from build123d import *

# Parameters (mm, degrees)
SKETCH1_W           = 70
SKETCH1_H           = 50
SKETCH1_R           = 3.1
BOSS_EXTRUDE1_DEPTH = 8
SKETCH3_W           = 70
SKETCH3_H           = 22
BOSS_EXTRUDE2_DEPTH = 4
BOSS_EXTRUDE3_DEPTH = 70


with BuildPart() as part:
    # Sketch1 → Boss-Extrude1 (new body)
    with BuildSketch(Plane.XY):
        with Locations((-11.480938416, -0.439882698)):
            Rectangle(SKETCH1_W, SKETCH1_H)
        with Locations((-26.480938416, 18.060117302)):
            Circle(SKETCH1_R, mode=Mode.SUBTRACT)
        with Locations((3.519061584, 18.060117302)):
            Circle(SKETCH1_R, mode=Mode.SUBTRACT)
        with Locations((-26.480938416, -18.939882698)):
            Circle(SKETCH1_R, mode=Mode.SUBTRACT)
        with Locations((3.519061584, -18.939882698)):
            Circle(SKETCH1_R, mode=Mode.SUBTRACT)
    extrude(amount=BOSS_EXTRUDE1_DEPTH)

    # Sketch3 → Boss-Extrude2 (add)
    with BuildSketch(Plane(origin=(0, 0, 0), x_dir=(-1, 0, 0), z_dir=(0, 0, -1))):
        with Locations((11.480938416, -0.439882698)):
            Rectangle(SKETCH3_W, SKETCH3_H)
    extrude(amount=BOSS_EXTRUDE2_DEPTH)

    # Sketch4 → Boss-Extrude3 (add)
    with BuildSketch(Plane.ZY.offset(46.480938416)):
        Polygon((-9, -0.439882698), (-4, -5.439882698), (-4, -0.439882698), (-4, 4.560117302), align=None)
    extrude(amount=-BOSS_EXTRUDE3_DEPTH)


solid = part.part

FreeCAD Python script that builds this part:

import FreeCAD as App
import Part
import Sketcher
from FreeCAD import Vector
Q = App.Units.Quantity

doc = App.newDocument("Part")
body = doc.addObject("PartDesign::Body", "Body")

sketch1 = body.newObject("Sketcher::SketchObject", "Sketch")
sketch1.AttachmentSupport = (doc.getObject("XY_Plane"), [""])
sketch1.MapMode = "FlatFace"
sketch1.addGeometry([
    Part.LineSegment(Vector(-46.5, 24.6, 0), Vector(-46.5, -25.4, 0)),
    Part.LineSegment(Vector(-46.5, -25.4, 0), Vector(23.5, -25.4, 0)),
    Part.LineSegment(Vector(23.5, -25.4, 0), Vector(23.5, 24.6, 0)),
    Part.LineSegment(Vector(23.5, 24.6, 0), Vector(-46.5, 24.6, 0)),
    Part.Circle(Vector(-26.5, -18.9, 0), Vector(0, 0, 1), 3.1),
    Part.Circle(Vector(3.5, -18.9, 0), Vector(0, 0, 1), 3.1),
    Part.Circle(Vector(-26.5, 18.1, 0), Vector(0, 0, 1), 3.1),
    Part.Circle(Vector(3.5, 18.1, 0), Vector(0, 0, 1), 3.1),
], False)
sketch1.addConstraint([
    Sketcher.Constraint("Coincident", 0, 2, 1, 1),
    Sketcher.Constraint("Coincident", 1, 2, 2, 1),
    Sketcher.Constraint("Coincident", 2, 2, 3, 1),
    Sketcher.Constraint("Coincident", 3, 2, 0, 1),
    Sketcher.Constraint("Vertical", 0),
    Sketcher.Constraint("Horizontal", 1),
    Sketcher.Constraint("Vertical", 2),
    Sketcher.Constraint("Horizontal", 3),
    Sketcher.Constraint("Equal", 4, 5),
    Sketcher.Constraint("Equal", 5, 6),
    Sketcher.Constraint("Equal", 6, 7),
    Sketcher.Constraint("Horizontal", 4, 3, 5, 3),
    Sketcher.Constraint("Horizontal", 6, 3, 7, 3),
    Sketcher.Constraint("Vertical", 4, 3, 6, 3),
    Sketcher.Constraint("Vertical", 5, 3, 7, 3),
    Sketcher.Constraint("Diameter", 4, Q("6.2 mm")),
    Sketcher.Constraint("DistanceX", 1, 1, 1, 2, Q("70 mm")),
    Sketcher.Constraint("DistanceY", 0, 2, 0, 1, Q("50 mm")),
    Sketcher.Constraint("DistanceX", 4, 3, 5, 3, Q("30 mm")),
    Sketcher.Constraint("DistanceY", 4, 3, 6, 3, Q("37 mm")),
    Sketcher.Constraint("DistanceX", 0, 2, 4, 3, Q("20 mm")),
    Sketcher.Constraint("DistanceY", 0, 2, 4, 3, Q("6.5 mm")),
    Sketcher.Constraint("DistanceX", 4, 3, -1, 1, Q("26.480938 mm")),
    Sketcher.Constraint("DistanceY", 4, 3, -1, 1, Q("18.939883 mm")),
])
pad1 = body.newObject("PartDesign::Pad", "Pad")
pad1.Profile = sketch1
pad1.Length = 8

sketch2 = body.newObject("Sketcher::SketchObject", "Sketch001")
sketch2.AttachmentSupport = (doc.getObject("XY_Plane"), [""])
sketch2.MapMode = "FlatFace"
sketch2.addGeometry([
    Part.LineSegment(Vector(24, 11, 0), Vector(24, -11, 0)),
    Part.LineSegment(Vector(24, -11, 0), Vector(-46, -11, 0)),
    Part.LineSegment(Vector(-46, -11, 0), Vector(-46, 11, 0)),
    Part.LineSegment(Vector(-46, 11, 0), Vector(24, 11, 0)),
], False)
sketch2.addConstraint([
    Sketcher.Constraint("Coincident", 0, 2, 1, 1),
    Sketcher.Constraint("Coincident", 1, 2, 2, 1),
    Sketcher.Constraint("Coincident", 2, 2, 3, 1),
    Sketcher.Constraint("Coincident", 3, 2, 0, 1),
    Sketcher.Constraint("Vertical", 0),
    Sketcher.Constraint("Horizontal", 1),
    Sketcher.Constraint("Vertical", 2),
    Sketcher.Constraint("Horizontal", 3),
    Sketcher.Constraint("DistanceX", 1, 2, 1, 1, Q("70 mm")),
    Sketcher.Constraint("DistanceY", 0, 2, 0, 1, Q("22 mm")),
    Sketcher.Constraint("DistanceX", -1, 1, 0, 2, Q("23.519062 mm")),
    Sketcher.Constraint("DistanceY", 0, 2, -1, 1, Q("11.439883 mm")),
])
pad2 = body.newObject("PartDesign::Pad", "Pad001")
pad2.Profile = sketch2
pad2.Length = 4
pad2.Reversed = True

sketch3 = body.newObject("Sketcher::SketchObject", "Sketch002")
sketch3.AttachmentSupport = (doc.getObject("YZ_Plane"), [""])
sketch3.MapMode = "FlatFace"
sketch3.AttachmentOffset = App.Placement(Vector(0, 0, -46.480938), App.Rotation())
sketch3.addGeometry([
    Part.LineSegment(Vector(0, -9, 0), Vector(-5, -4, 0)),
    Part.LineSegment(Vector(-5, -4, 0), Vector(5, -4, 0)),
    Part.LineSegment(Vector(5, -4, 0), Vector(0, -9, 0)),
], False)
sketch3.addConstraint([
    Sketcher.Constraint("Coincident", 0, 2, 1, 1),
    Sketcher.Constraint("Coincident", 1, 2, 2, 1),
    Sketcher.Constraint("Coincident", 2, 2, 0, 1),
    Sketcher.Constraint("Horizontal", 1),
    Sketcher.Constraint("Perpendicular", 0, 2),
    Sketcher.Constraint("Equal", 0, 2),
    Sketcher.Constraint("DistanceX", 1, 1, 1, 2, Q("10 mm")),
    Sketcher.Constraint("DistanceY", 0, 2, -1, 1, Q("4 mm")),
    Sketcher.Constraint("DistanceX", 0, 2, -1, 1, Q("5.439883 mm")),
])
pad3 = body.newObject("PartDesign::Pad", "Pad002")
pad3.Profile = sketch3
pad3.Length = 70

doc.recompute()
